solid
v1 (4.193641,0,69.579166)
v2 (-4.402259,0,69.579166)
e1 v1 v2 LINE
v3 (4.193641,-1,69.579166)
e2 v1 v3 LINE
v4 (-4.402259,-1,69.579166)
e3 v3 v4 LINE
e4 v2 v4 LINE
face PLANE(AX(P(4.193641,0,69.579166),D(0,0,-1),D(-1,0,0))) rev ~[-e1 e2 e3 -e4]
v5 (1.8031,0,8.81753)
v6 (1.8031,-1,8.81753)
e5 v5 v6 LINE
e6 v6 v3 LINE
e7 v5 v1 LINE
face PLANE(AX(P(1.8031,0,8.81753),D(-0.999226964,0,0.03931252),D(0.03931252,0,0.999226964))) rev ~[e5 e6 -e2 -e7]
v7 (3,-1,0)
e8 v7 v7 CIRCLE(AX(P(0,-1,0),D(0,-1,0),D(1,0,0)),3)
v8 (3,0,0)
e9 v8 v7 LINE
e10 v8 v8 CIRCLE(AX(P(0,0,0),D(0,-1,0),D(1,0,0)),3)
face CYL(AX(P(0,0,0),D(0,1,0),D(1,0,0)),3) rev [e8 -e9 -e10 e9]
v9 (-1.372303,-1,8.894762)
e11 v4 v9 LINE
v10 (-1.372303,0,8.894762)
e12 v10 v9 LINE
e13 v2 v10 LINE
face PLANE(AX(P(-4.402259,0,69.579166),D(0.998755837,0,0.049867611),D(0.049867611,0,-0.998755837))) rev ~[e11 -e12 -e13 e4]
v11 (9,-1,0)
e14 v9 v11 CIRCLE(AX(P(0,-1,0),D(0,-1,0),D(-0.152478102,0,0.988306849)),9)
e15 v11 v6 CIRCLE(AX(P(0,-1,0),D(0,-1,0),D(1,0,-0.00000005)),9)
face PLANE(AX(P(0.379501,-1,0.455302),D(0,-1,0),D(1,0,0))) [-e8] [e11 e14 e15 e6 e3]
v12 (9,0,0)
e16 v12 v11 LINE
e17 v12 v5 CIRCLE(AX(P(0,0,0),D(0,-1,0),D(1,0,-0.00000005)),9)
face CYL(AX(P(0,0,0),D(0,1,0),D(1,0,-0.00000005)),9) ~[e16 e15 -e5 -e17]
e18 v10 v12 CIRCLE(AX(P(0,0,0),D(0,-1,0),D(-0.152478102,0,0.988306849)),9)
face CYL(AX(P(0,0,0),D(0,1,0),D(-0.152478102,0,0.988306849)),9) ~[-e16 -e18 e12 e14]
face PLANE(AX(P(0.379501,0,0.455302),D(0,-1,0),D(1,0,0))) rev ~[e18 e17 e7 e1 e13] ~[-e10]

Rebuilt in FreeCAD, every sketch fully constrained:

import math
import FreeCAD as App
import Part
import Sketcher

doc = App.newDocument("Part")
body = doc.addObject("PartDesign::Body", "Body")

sketch1 = body.newObject("Sketcher::SketchObject", "Sketch")
sketch1.AttachmentSupport = (doc.getObject("XZ_Plane"), [""])
sketch1.MapMode = "FlatFace"
sketch1.addGeometry([
    Part.ArcOfCircle(Part.Circle(App.Vector(0, 0, 0), App.Vector(0, 0, 1), 9), math.radians(98.770564), math.radians(359.999998)),
    Part.ArcOfCircle(Part.Circle(App.Vector(0, 0, 0), App.Vector(0, 0, 1), 9), math.radians(-0.000003), math.radians(78.442899)),
    Part.LineSegment(App.Vector(1.8031, 8.81753, 0), App.Vector(4.193641, 69.579166, 0)),
    Part.LineSegment(App.Vector(4.193641, 69.579166, 0), App.Vector(-4.402259, 69.579166, 0)),
    Part.LineSegment(App.Vector(-4.402259, 69.579166, 0), App.Vector(-1.372303, 8.894762, 0)),
    Part.Circle(App.Vector(0, 0, 0), App.Vector(0, 0, 1), 3),
], False)
sketch1.addConstraint([
    Sketcher.Constraint("Tangent", 0, 2, 1, 1),
    Sketcher.Constraint("Coincident", 1, 2, 2, 1),
    Sketcher.Constraint("Coincident", 2, 2, 3, 1),
    Sketcher.Constraint("Coincident", 3, 2, 4, 1),
    Sketcher.Constraint("Coincident", 4, 2, 0, 1),
    Sketcher.Constraint("Horizontal", 3),
    Sketcher.Constraint("Coincident", 0, 3, -1, 1),
    Sketcher.Constraint("Coincident", 5, 3, -1, 1),
    Sketcher.Constraint("Equal", 0, 1),
    Sketcher.Constraint("PointOnObject", 0, 2, -1),
    Sketcher.Constraint("Diameter", 5, 6.0),
    Sketcher.Constraint("Radius", 0, 9.0),
    Sketcher.Constraint("Distance", 4, 60.759999),
    Sketcher.Constraint("DistanceX", 3, 2, 3, 1, 8.5959),
    Sketcher.Constraint("DistanceX", -1, 1, 1, 2, 1.8031),
    Sketcher.Constraint("DistanceX", -1, 1, 2, 2, 4.193641),
    Sketcher.Constraint("DistanceY", 1, 3, 4, 2, 8.894762),
])
pad1 = body.newObject("PartDesign::Pad", "Pad")
pad1.Profile = sketch1
pad1.Length = 1

doc.recompute()
